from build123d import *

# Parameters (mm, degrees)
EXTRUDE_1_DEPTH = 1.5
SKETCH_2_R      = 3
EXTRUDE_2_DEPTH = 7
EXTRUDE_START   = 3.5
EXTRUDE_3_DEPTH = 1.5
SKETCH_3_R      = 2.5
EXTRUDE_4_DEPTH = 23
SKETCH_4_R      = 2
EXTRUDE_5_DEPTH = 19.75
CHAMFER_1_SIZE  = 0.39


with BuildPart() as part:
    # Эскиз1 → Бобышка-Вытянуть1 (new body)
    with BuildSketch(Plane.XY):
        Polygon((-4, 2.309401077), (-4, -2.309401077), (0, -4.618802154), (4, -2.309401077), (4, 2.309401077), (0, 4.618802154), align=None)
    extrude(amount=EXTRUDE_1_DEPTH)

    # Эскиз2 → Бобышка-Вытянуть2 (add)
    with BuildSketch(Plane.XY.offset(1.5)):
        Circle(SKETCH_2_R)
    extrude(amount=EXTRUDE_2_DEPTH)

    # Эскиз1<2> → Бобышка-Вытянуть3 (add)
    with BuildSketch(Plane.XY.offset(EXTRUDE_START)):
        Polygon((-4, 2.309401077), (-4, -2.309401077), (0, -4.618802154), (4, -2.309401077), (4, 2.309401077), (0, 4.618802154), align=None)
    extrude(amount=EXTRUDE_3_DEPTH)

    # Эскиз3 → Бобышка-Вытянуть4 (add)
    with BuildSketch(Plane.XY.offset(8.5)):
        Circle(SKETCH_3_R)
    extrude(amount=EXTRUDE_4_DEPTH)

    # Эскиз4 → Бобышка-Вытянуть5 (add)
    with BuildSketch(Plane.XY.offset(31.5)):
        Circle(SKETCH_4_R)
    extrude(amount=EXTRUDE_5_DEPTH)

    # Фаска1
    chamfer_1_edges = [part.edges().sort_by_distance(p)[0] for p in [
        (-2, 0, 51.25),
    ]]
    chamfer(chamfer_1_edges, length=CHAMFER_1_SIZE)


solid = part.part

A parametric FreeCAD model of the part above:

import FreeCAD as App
import Part
import Sketcher
from FreeCAD import Vector
Q = App.Units.Quantity


def edges_at(feature, points):
    """Names of the edges that pass closest to the given points."""
    edges = feature.Shape.Edges
    near = lambda p: min(range(len(edges)), key=lambda i: edges[i].distToShape(Part.Vertex(*p))[0])
    return sorted({f"Edge{near(p) + 1}" for p in points})

doc = App.newDocument("Part")
body = doc.addObject("PartDesign::Body", "Body")

# Sketch on XY plane
sketch1 = doc.addObject("Sketcher::SketchObject", "Sketch")
body.addObject(sketch1)
sketch1.AttachmentSupport = (doc.XY_Plane, [""])
sketch1.MapMode = "FlatFace"
sketch1.addGeometry([
    Part.LineSegment(Vector(-4, 2.309401, 0), Vector(-4, -2.309401, 0)),  # 0
    Part.LineSegment(Vector(-4, -2.309401, 0), Vector(0, -4.618802, 0)),  # 1
    Part.LineSegment(Vector(0, -4.618802, 0), Vector(4, -2.309401, 0)),  # 2
    Part.LineSegment(Vector(4, -2.309401, 0), Vector(4, 2.309401, 0)),  # 3
    Part.LineSegment(Vector(4, 2.309401, 0), Vector(0, 4.618802, 0)),  # 4
    Part.LineSegment(Vector(0, 4.618802, 0), Vector(-4, 2.309401, 0)),  # 5
], False)
sketch1.addConstraint([
    Sketcher.Constraint("Coincident", 0, 2, 1, 1),
    Sketcher.Constraint("Coincident", 1, 2, 2, 1),
    Sketcher.Constraint("Coincident", 2, 2, 3, 1),
    Sketcher.Constraint("Coincident", 3, 2, 4, 1),
    Sketcher.Constraint("Coincident", 4, 2, 5, 1),
    Sketcher.Constraint("Coincident", 5, 2, 0, 1),
    Sketcher.Constraint("Vertical", 0),
    Sketcher.Constraint("Vertical", 3),
    Sketcher.Constraint("Symmetric", 0, 2, 3, 2, -1, 1),
    Sketcher.Constraint("Symmetric", 1, 2, 4, 2, -1, 1),
    Sketcher.Constraint("PointOnObject", 1, 2, -2),
    Sketcher.Constraint("Parallel", 2, 5),
    Sketcher.Constraint("Horizontal", 0, 2, 2, 2),
    Sketcher.Constraint("Angle", 1, Q("-30 deg")),
    Sketcher.Constraint("DistanceX", 0, 2, -1, 1, 4.0),
    Sketcher.Constraint("DistanceY", 0, 2, -1, 1, 2.309401),
])
pad1 = doc.addObject("PartDesign::Pad", "Pad")
body.addObject(pad1)
pad1.Profile = sketch1
pad1.Length = 1.5

# Sketch on XY plane
sketch2 = doc.addObject("Sketcher::SketchObject", "Sketch001")
body.addObject(sketch2)
sketch2.AttachmentSupport = (doc.XY_Plane, [""])
sketch2.MapMode = "FlatFace"
sketch2.AttachmentOffset = App.Placement(Vector(0, 0, 1.5), App.Rotation())
sketch2.addGeometry(Part.Circle(Vector(0, 0, 0), Vector(0, 0, 1), 3), False)
sketch2.addConstraint([
    Sketcher.Constraint("Coincident", 0, 3, -1, 1),
    Sketcher.Constraint("Diameter", 0, 6.0),
])
pad2 = doc.addObject("PartDesign::Pad", "Pad001")
body.addObject(pad2)
pad2.Profile = sketch2
pad2.Length = 7

# Sketch on XY plane
sketch3 = doc.addObject("Sketcher::SketchObject", "Sketch002")
body.addObject(sketch3)
sketch3.AttachmentSupport = (doc.XY_Plane, [""])
sketch3.MapMode = "FlatFace"
sketch3.AttachmentOffset = App.Placement(Vector(0, 0, 3.5), App.Rotation())
sketch3.addGeometry([
    Part.LineSegment(Vector(-4, 2.309401, 0), Vector(-4, -2.309401, 0)),  # 0
    Part.LineSegment(Vector(-4, -2.309401, 0), Vector(0, -4.618802, 0)),  # 1
    Part.LineSegment(Vector(0, -4.618802, 0), Vector(4, -2.309401, 0)),  # 2
    Part.LineSegment(Vector(4, -2.309401, 0), Vector(4, 2.309401, 0)),  # 3
    Part.LineSegment(Vector(4, 2.309401, 0), Vector(0, 4.618802, 0)),  # 4
    Part.LineSegment(Vector(0, 4.618802, 0), Vector(-4, 2.309401, 0)),  # 5
], False)
sketch3.addConstraint([
    Sketcher.Constraint("Coincident", 0, 2, 1, 1),
    Sketcher.Constraint("Coincident", 1, 2, 2, 1),
    Sketcher.Constraint("Coincident", 2, 2, 3, 1),
    Sketcher.Constraint("Coincident", 3, 2, 4, 1),
    Sketcher.Constraint("Coincident", 4, 2, 5, 1),
    Sketcher.Constraint("Coincident", 5, 2, 0, 1),
    Sketcher.Constraint("Vertical", 0),
    Sketcher.Constraint("Vertical", 3),
    Sketcher.Constraint("Symmetric", 0, 2, 3, 2, -1, 1),
    Sketcher.Constraint("Symmetric", 1, 2, 4, 2, -1, 1),
    Sketcher.Constraint("PointOnObject", 1, 2, -2),
    Sketcher.Constraint("Parallel", 2, 5),
    Sketcher.Constraint("Horizontal", 0, 2, 2, 2),
    Sketcher.Constraint("Angle", 1, Q("-30 deg")),
    Sketcher.Constraint("DistanceX", 0, 2, -1, 1, 4.0),
    Sketcher.Constraint("DistanceY", 0, 2, -1, 1, 2.309401),
])
pad3 = doc.addObject("PartDesign::Pad", "Pad002")
body.addObject(pad3)
pad3.Profile = sketch3
pad3.Length = 1.5

# Sketch on XY plane
sketch4 = doc.addObject("Sketcher::SketchObject", "Sketch003")
body.addObject(sketch4)
sketch4.AttachmentSupport = (doc.XY_Plane, [""])
sketch4.MapMode = "FlatFace"
sketch4.AttachmentOffset = App.Placement(Vector(0, 0, 8.5), App.Rotation())
sketch4.addGeometry(Part.Circle(Vector(0, 0, 0), Vector(0, 0, 1), 2.5), False)
sketch4.addConstraint([
    Sketcher.Constraint("Coincident", 0, 3, -1, 1),
    Sketcher.Constraint("Diameter", 0, 5.0),
])
pad4 = doc.addObject("PartDesign::Pad", "Pad003")
body.addObject(pad4)
pad4.Profile = sketch4
pad4.Length = 23

# Sketch on XY plane
sketch5 = doc.addObject("Sketcher::SketchObject", "Sketch004")
body.addObject(sketch5)
sketch5.AttachmentSupport = (doc.XY_Plane, [""])
sketch5.MapMode = "FlatFace"
sketch5.AttachmentOffset = App.Placement(Vector(0, 0, 31.5), App.Rotation())
sketch5.addGeometry(Part.Circle(Vector(0, 0, 0), Vector(0, 0, 1), 2), False)
sketch5.addConstraint([
    Sketcher.Constraint("Coincident", 0, 3, -1, 1),
    Sketcher.Constraint("Diameter", 0, 4.0),
])
pad5 = doc.addObject("PartDesign::Pad", "Pad004")
body.addObject(pad5)
pad5.Profile = sketch5
pad5.Length = 19.75
doc.recompute()

chamfer = doc.addObject("PartDesign::Chamfer", "Chamfer")
body.addObject(chamfer)
chamfer.Base = (pad5, edges_at(pad5, [(-2, 0, 51.25)]))
chamfer.Size = 0.39

doc.recompute()
